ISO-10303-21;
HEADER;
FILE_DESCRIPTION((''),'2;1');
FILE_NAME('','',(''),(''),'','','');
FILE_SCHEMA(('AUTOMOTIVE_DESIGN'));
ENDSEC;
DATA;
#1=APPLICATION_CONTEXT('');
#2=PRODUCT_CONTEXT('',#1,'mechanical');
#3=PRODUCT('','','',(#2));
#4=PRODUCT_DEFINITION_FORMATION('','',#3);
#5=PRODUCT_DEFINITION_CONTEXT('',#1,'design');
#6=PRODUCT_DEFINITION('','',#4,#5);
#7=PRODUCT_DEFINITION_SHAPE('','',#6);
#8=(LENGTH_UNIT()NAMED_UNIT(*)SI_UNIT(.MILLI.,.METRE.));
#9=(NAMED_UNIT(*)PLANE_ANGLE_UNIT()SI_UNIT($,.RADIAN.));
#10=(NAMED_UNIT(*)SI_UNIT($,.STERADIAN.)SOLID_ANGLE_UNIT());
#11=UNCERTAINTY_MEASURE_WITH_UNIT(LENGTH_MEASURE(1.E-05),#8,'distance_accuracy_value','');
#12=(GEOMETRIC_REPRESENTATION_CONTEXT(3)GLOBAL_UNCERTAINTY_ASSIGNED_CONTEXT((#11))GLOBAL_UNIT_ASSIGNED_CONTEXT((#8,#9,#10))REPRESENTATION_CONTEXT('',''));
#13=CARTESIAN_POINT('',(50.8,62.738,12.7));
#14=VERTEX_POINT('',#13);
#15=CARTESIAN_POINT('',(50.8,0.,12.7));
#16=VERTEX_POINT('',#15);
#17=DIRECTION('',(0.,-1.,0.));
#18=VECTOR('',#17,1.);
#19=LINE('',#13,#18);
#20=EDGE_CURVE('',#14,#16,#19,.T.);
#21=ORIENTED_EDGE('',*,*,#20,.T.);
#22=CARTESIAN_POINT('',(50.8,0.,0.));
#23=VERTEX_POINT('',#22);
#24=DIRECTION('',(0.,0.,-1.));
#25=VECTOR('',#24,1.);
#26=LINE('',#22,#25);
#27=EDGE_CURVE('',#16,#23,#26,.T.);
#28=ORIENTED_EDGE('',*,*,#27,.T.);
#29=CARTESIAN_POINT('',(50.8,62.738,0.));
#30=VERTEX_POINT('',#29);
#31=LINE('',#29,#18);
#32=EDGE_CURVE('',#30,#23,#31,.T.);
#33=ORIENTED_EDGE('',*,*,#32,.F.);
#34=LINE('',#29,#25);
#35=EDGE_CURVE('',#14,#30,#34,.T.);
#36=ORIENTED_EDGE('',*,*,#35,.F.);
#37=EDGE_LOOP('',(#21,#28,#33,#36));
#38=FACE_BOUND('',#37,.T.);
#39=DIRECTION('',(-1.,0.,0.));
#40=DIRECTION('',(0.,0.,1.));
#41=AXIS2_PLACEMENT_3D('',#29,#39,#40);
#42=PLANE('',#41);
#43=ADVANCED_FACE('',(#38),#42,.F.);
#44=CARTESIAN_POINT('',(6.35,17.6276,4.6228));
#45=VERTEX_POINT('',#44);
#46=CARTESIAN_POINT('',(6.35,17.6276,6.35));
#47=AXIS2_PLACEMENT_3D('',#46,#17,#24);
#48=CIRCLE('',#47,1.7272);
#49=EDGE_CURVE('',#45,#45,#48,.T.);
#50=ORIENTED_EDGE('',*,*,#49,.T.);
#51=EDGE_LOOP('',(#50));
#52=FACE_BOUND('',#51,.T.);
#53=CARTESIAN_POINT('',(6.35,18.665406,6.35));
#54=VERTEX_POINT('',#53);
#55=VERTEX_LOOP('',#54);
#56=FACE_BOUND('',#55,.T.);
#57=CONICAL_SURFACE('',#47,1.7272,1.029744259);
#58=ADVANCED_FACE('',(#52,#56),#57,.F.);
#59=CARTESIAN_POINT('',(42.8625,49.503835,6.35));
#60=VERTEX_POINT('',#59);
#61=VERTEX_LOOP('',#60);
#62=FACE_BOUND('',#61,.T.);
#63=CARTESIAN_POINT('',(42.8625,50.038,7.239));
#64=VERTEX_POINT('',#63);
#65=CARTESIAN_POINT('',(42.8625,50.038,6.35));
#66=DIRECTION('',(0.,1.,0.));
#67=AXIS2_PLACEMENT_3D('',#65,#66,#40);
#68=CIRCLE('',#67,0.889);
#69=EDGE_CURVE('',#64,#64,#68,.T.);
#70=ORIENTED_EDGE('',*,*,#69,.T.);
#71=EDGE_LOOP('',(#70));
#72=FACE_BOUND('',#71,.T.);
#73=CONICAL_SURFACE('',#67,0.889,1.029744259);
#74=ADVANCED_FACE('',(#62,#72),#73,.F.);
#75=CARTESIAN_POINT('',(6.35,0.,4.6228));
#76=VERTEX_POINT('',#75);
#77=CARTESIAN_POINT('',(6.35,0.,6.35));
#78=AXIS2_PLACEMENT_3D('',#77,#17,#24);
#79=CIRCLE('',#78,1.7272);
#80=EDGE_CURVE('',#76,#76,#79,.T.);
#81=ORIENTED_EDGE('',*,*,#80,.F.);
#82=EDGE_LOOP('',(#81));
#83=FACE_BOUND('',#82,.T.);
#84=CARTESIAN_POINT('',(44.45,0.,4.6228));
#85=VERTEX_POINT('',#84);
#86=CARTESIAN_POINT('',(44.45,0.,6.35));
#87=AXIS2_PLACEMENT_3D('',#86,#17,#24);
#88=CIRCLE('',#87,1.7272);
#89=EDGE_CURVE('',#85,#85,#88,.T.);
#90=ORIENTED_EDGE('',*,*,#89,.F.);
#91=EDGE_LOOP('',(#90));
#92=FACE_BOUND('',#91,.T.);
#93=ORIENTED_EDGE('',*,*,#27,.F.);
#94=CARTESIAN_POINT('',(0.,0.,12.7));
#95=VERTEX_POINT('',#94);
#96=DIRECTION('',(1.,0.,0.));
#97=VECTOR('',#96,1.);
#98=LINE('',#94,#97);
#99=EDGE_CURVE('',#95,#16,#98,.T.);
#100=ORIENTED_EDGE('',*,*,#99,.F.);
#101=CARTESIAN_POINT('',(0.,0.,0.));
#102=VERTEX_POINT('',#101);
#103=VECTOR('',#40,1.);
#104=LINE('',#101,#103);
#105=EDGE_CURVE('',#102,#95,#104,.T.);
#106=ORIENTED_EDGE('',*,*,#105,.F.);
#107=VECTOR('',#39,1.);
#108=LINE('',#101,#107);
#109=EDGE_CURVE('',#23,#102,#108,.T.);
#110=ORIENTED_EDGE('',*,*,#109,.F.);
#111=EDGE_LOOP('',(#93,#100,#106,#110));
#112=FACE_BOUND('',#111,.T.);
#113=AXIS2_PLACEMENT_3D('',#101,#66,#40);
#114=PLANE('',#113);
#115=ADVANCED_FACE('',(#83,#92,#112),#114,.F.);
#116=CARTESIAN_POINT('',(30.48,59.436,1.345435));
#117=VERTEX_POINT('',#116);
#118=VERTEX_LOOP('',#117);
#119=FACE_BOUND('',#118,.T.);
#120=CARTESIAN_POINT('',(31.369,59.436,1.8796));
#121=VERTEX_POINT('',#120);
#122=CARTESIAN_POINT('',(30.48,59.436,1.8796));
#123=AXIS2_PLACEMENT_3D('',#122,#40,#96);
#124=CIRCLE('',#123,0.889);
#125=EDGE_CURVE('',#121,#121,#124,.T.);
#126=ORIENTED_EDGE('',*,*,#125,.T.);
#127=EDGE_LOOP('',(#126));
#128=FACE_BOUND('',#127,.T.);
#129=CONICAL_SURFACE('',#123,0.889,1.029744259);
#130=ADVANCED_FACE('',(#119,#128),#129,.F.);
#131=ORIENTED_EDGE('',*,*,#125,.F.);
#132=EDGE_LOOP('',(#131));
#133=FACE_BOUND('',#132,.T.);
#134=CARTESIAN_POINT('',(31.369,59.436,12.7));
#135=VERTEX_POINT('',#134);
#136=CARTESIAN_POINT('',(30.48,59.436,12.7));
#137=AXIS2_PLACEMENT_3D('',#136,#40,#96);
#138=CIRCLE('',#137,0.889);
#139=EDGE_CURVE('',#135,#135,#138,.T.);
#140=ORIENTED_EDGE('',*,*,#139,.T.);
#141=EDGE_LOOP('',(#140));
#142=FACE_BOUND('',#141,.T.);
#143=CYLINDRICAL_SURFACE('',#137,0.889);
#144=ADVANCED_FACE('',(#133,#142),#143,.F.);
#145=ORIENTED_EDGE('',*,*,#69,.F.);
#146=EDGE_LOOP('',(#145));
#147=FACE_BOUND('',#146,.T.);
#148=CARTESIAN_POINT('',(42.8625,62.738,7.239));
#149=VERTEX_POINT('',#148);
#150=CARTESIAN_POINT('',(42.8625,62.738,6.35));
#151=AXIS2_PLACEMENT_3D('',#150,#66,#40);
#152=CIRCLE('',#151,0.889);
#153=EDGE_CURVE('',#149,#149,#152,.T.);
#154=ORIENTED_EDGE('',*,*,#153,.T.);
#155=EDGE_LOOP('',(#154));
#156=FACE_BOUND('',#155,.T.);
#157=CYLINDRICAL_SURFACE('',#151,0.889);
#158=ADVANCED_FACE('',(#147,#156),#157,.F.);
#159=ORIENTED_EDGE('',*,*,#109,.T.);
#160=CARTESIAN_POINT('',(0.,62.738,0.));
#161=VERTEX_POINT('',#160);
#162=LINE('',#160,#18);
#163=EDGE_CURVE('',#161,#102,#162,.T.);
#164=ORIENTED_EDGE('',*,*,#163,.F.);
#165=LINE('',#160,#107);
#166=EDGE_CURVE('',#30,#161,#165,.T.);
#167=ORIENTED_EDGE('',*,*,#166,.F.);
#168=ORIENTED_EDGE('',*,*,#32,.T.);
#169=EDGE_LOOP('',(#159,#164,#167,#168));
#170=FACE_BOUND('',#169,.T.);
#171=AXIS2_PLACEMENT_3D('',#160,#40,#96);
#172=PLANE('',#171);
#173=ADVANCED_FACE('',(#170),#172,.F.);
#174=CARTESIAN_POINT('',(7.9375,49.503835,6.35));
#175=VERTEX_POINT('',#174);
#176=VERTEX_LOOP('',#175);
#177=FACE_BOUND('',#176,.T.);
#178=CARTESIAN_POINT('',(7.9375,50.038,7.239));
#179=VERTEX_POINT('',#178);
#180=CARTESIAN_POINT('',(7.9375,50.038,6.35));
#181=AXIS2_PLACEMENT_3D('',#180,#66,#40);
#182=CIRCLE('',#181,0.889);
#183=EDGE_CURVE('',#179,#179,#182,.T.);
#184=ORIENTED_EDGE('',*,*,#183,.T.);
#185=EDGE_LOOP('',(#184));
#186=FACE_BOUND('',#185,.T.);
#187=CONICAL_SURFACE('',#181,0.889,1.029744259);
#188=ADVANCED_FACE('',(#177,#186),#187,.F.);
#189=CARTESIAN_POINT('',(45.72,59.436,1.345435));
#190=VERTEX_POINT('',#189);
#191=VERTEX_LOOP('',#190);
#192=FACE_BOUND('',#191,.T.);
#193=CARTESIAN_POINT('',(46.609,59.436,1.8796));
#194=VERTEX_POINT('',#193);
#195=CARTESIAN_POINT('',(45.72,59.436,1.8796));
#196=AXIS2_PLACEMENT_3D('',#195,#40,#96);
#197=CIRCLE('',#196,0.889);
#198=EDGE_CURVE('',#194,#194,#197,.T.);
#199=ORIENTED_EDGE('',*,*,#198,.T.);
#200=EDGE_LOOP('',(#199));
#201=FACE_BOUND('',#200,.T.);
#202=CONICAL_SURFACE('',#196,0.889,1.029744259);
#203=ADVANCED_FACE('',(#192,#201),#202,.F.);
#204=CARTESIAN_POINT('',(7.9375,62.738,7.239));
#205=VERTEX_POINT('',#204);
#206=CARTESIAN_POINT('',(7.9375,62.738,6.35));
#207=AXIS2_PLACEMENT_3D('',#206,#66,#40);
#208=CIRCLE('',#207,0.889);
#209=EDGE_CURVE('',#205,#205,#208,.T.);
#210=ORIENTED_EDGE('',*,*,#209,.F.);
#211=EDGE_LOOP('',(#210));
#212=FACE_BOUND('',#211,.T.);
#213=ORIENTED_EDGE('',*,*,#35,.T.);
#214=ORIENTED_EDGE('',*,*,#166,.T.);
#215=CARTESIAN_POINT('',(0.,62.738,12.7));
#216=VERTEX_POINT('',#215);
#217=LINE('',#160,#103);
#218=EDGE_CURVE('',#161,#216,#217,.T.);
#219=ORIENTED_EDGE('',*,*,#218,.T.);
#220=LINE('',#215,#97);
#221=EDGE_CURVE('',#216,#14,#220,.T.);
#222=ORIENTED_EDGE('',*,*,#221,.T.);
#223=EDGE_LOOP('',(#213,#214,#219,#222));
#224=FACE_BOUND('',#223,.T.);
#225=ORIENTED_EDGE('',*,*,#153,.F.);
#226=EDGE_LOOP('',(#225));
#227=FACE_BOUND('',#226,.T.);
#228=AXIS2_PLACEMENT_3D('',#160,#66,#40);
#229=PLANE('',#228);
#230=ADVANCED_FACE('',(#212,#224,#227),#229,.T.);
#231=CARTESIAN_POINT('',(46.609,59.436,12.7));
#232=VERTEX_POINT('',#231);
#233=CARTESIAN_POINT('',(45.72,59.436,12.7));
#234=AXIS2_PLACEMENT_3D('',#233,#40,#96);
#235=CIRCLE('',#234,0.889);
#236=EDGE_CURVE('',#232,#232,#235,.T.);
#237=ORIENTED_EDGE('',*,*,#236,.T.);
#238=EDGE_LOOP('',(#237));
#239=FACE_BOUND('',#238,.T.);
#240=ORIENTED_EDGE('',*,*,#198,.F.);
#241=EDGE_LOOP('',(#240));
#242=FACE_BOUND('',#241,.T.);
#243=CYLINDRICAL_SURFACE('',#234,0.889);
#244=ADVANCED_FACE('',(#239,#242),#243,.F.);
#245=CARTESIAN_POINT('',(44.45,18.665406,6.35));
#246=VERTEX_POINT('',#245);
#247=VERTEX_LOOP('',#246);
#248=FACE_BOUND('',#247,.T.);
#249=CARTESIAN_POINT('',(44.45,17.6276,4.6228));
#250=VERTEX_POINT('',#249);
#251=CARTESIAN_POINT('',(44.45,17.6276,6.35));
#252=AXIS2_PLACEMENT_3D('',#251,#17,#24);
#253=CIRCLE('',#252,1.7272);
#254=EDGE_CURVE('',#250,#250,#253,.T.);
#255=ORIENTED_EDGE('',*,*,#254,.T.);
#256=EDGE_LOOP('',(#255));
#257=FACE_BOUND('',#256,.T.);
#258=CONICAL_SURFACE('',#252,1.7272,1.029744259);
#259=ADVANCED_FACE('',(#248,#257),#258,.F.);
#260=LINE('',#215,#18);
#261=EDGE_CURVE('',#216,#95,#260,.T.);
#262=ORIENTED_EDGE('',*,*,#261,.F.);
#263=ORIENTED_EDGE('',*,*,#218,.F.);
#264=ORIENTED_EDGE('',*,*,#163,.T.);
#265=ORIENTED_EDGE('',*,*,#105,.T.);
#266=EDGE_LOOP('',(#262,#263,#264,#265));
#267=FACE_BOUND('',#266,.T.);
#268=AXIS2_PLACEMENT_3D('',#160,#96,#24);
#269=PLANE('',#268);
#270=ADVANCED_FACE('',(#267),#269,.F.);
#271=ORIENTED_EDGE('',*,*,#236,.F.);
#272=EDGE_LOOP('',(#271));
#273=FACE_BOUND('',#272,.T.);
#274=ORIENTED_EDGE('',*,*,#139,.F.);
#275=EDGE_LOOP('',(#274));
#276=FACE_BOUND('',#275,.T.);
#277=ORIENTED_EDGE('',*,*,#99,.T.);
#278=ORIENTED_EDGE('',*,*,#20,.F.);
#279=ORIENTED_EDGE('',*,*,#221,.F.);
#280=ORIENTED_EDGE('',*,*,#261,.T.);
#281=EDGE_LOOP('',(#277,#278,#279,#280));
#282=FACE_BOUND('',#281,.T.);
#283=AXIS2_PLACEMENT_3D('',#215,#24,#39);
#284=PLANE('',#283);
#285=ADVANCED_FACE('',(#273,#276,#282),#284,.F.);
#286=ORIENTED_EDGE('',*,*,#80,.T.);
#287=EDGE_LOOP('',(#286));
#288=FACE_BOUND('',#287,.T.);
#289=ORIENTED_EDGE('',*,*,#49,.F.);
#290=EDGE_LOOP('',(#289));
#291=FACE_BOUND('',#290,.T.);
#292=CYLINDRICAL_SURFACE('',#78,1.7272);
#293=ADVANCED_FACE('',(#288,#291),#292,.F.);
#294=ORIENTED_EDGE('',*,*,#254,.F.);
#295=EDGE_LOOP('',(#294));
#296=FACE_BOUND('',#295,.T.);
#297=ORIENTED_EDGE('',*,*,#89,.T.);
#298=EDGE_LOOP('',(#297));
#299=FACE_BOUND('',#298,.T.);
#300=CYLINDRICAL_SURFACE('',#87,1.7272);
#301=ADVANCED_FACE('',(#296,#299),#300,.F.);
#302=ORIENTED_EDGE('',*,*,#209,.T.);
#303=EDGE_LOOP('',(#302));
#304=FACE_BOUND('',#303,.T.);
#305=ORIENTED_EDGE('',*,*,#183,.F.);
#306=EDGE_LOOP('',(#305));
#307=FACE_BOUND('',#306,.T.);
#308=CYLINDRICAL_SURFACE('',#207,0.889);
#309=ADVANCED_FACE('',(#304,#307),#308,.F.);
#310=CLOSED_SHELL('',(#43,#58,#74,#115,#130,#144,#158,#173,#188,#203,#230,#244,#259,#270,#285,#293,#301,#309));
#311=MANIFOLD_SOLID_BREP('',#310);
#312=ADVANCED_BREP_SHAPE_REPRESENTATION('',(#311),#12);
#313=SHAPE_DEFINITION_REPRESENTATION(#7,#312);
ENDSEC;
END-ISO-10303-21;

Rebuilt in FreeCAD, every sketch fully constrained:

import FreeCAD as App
import Part
import Sketcher

V = App.Vector
Q = App.Units.Quantity


def add_polygon(sketch, points):
    """Adds a closed chain of lines whose ends are joined by coincident constraints."""
    first, n = sketch.GeometryCount, len(points)
    for a, b in zip(points, points[1:] + points[:1]):
        sketch.addGeometry(Part.LineSegment(App.Vector(*a, 0), App.Vector(*b, 0)), False)
    for i in range(n):
        sketch.addConstraint(Sketcher.Constraint("Coincident", first + i, 2, first + (i + 1) % n, 1))

doc = App.newDocument("Part")
body = doc.addObject("PartDesign::Body", "Body")

# Sketch on XZ plane
sketch1 = body.newObject("Sketcher::SketchObject", "Sketch")
sketch1.AttachmentSupport = (doc.getObject("XZ_Plane"), [""])
sketch1.MapMode = "FlatFace"
add_polygon(sketch1, [(0, 0), (0, 12.7), (50.8, 12.7), (50.8, 0)])  # lines 0-3
sketch1.addConstraint([
    Sketcher.Constraint("Vertical", 0),
    Sketcher.Constraint("Horizontal", 1),
    Sketcher.Constraint("Vertical", 2),
    Sketcher.Constraint("Horizontal", 3),
    Sketcher.Constraint("Coincident", 3, 2, -1, 1),
    Sketcher.Constraint("DistanceX", 1, 1, 1, 2, Q("2 in")),
    Sketcher.Constraint("DistanceY", 0, 1, 0, 2, Q("0.5 in")),
])
pad1 = body.newObject("PartDesign::Pad", "Pad")
pad1.Profile = sketch1
pad1.Length = Q("2.47 in")
pad1.Reversed = True

# Sketch on XZ plane
sketch2 = body.newObject("Sketcher::SketchObject", "Sketch001")
sketch2.AttachmentSupport = (doc.getObject("XZ_Plane"), [""])
sketch2.MapMode = "FlatFace"
sketch2.addGeometry([
    Part.Circle(V(6.35, 6.35, 0), V(0, 0, 1), 1.7272),
    Part.Circle(V(44.45, 6.35, 0), V(0, 0, 1), 1.7272),
], False)
sketch2.addConstraint([
    Sketcher.Constraint("Equal", 0, 1),
    Sketcher.Constraint("Horizontal", 0, 3, 1, 3),
    Sketcher.Constraint("Diameter", 0, Q("0.136 in")),
    Sketcher.Constraint("DistanceX", 0, 3, 1, 3, Q("1.5 in")),
    Sketcher.Constraint("DistanceX", -1, 1, 0, 3, Q("0.25 in")),
    Sketcher.Constraint("DistanceY", -1, 1, 0, 3, Q("0.25 in")),
])
doc.recompute()
hole = body.newObject("PartDesign::Hole", "Hole")
hole.Profile = sketch2
hole.ThreadType = "None"
hole.Diameter = Q("0.136 in")
hole.DepthType = "Dimension"
hole.Depth = Q("0.694 in")
hole.DrillPoint = "Angled"
hole.DrillPointAngle = 118

# Sketch on XZ plane
sketch3 = body.newObject("Sketcher::SketchObject", "Sketch002")
sketch3.AttachmentSupport = (doc.getObject("XZ_Plane"), [""])
sketch3.MapMode = "FlatFace"
sketch3.AttachmentOffset = App.Placement(V(0, 0, -2.47 * 25.4), App.Rotation())
sketch3.addGeometry([
    Part.Circle(V(7.9375, 6.35, 0), V(0, 0, 1), 0.889),
    Part.Circle(V(42.8625, 6.35, 0), V(0, 0, 1), 0.889),
], False)
sketch3.addConstraint([
    Sketcher.Constraint("Equal", 0, 1),
    Sketcher.Constraint("Horizontal", 0, 3, 1, 3),
    Sketcher.Constraint("Diameter", 0, Q("0.07 in")),
    Sketcher.Constraint("DistanceY", -1, 1, 0, 3, Q("0.25 in")),
    Sketcher.Constraint("DistanceX", -1, 1, 0, 3, Q("0.3125 in")),
    Sketcher.Constraint("DistanceX", -1, 1, 1, 3, Q("1.6875 in")),
])
doc.recompute()
hole2 = body.newObject("PartDesign::Hole", "Hole001")
hole2.Profile = sketch3
hole2.ThreadType = "None"
hole2.Diameter = Q("0.07 in")
hole2.DepthType = "Dimension"
hole2.Depth = Q("0.5 in")
hole2.DrillPoint = "Angled"
hole2.DrillPointAngle = 118
hole2.Reversed = True

# Sketch on XY plane
sketch4 = body.newObject("Sketcher::SketchObject", "Sketch003")
sketch4.AttachmentSupport = (doc.getObject("XY_Plane"), [""])
sketch4.MapMode = "FlatFace"
sketch4.AttachmentOffset = App.Placement(V(0, 0, 0.5 * 25.4), App.Rotation())
sketch4.addGeometry([
    Part.Circle(V(30.48, 59.436, 0), V(0, 0, 1), 0.889),
    Part.Circle(V(45.72, 59.436, 0), V(0, 0, 1), 0.889),
], False)
sketch4.addConstraint([
    Sketcher.Constraint("Equal", 0, 1),
    Sketcher.Constraint("Horizontal", 0, 3, 1, 3),
    Sketcher.Constraint("Diameter", 0, Q("0.07 in")),
    Sketcher.Constraint("DistanceX", -1, 1, 0, 3, Q("1.2 in")),
    Sketcher.Constraint("DistanceX", -1, 1, 1, 3, Q("1.8 in")),
    Sketcher.Constraint("DistanceY", -1, 1, 0, 3, Q("2.34 in")),
])
doc.recompute()
hole3 = body.newObject("PartDesign::Hole", "Hole002")
hole3.Profile = sketch4
hole3.ThreadType = "None"
hole3.Diameter = Q("0.07 in")
hole3.DepthType = "Dimension"
hole3.Depth = Q("0.426 in")
hole3.DrillPoint = "Angled"
hole3.DrillPointAngle = 118

doc.recompute()
